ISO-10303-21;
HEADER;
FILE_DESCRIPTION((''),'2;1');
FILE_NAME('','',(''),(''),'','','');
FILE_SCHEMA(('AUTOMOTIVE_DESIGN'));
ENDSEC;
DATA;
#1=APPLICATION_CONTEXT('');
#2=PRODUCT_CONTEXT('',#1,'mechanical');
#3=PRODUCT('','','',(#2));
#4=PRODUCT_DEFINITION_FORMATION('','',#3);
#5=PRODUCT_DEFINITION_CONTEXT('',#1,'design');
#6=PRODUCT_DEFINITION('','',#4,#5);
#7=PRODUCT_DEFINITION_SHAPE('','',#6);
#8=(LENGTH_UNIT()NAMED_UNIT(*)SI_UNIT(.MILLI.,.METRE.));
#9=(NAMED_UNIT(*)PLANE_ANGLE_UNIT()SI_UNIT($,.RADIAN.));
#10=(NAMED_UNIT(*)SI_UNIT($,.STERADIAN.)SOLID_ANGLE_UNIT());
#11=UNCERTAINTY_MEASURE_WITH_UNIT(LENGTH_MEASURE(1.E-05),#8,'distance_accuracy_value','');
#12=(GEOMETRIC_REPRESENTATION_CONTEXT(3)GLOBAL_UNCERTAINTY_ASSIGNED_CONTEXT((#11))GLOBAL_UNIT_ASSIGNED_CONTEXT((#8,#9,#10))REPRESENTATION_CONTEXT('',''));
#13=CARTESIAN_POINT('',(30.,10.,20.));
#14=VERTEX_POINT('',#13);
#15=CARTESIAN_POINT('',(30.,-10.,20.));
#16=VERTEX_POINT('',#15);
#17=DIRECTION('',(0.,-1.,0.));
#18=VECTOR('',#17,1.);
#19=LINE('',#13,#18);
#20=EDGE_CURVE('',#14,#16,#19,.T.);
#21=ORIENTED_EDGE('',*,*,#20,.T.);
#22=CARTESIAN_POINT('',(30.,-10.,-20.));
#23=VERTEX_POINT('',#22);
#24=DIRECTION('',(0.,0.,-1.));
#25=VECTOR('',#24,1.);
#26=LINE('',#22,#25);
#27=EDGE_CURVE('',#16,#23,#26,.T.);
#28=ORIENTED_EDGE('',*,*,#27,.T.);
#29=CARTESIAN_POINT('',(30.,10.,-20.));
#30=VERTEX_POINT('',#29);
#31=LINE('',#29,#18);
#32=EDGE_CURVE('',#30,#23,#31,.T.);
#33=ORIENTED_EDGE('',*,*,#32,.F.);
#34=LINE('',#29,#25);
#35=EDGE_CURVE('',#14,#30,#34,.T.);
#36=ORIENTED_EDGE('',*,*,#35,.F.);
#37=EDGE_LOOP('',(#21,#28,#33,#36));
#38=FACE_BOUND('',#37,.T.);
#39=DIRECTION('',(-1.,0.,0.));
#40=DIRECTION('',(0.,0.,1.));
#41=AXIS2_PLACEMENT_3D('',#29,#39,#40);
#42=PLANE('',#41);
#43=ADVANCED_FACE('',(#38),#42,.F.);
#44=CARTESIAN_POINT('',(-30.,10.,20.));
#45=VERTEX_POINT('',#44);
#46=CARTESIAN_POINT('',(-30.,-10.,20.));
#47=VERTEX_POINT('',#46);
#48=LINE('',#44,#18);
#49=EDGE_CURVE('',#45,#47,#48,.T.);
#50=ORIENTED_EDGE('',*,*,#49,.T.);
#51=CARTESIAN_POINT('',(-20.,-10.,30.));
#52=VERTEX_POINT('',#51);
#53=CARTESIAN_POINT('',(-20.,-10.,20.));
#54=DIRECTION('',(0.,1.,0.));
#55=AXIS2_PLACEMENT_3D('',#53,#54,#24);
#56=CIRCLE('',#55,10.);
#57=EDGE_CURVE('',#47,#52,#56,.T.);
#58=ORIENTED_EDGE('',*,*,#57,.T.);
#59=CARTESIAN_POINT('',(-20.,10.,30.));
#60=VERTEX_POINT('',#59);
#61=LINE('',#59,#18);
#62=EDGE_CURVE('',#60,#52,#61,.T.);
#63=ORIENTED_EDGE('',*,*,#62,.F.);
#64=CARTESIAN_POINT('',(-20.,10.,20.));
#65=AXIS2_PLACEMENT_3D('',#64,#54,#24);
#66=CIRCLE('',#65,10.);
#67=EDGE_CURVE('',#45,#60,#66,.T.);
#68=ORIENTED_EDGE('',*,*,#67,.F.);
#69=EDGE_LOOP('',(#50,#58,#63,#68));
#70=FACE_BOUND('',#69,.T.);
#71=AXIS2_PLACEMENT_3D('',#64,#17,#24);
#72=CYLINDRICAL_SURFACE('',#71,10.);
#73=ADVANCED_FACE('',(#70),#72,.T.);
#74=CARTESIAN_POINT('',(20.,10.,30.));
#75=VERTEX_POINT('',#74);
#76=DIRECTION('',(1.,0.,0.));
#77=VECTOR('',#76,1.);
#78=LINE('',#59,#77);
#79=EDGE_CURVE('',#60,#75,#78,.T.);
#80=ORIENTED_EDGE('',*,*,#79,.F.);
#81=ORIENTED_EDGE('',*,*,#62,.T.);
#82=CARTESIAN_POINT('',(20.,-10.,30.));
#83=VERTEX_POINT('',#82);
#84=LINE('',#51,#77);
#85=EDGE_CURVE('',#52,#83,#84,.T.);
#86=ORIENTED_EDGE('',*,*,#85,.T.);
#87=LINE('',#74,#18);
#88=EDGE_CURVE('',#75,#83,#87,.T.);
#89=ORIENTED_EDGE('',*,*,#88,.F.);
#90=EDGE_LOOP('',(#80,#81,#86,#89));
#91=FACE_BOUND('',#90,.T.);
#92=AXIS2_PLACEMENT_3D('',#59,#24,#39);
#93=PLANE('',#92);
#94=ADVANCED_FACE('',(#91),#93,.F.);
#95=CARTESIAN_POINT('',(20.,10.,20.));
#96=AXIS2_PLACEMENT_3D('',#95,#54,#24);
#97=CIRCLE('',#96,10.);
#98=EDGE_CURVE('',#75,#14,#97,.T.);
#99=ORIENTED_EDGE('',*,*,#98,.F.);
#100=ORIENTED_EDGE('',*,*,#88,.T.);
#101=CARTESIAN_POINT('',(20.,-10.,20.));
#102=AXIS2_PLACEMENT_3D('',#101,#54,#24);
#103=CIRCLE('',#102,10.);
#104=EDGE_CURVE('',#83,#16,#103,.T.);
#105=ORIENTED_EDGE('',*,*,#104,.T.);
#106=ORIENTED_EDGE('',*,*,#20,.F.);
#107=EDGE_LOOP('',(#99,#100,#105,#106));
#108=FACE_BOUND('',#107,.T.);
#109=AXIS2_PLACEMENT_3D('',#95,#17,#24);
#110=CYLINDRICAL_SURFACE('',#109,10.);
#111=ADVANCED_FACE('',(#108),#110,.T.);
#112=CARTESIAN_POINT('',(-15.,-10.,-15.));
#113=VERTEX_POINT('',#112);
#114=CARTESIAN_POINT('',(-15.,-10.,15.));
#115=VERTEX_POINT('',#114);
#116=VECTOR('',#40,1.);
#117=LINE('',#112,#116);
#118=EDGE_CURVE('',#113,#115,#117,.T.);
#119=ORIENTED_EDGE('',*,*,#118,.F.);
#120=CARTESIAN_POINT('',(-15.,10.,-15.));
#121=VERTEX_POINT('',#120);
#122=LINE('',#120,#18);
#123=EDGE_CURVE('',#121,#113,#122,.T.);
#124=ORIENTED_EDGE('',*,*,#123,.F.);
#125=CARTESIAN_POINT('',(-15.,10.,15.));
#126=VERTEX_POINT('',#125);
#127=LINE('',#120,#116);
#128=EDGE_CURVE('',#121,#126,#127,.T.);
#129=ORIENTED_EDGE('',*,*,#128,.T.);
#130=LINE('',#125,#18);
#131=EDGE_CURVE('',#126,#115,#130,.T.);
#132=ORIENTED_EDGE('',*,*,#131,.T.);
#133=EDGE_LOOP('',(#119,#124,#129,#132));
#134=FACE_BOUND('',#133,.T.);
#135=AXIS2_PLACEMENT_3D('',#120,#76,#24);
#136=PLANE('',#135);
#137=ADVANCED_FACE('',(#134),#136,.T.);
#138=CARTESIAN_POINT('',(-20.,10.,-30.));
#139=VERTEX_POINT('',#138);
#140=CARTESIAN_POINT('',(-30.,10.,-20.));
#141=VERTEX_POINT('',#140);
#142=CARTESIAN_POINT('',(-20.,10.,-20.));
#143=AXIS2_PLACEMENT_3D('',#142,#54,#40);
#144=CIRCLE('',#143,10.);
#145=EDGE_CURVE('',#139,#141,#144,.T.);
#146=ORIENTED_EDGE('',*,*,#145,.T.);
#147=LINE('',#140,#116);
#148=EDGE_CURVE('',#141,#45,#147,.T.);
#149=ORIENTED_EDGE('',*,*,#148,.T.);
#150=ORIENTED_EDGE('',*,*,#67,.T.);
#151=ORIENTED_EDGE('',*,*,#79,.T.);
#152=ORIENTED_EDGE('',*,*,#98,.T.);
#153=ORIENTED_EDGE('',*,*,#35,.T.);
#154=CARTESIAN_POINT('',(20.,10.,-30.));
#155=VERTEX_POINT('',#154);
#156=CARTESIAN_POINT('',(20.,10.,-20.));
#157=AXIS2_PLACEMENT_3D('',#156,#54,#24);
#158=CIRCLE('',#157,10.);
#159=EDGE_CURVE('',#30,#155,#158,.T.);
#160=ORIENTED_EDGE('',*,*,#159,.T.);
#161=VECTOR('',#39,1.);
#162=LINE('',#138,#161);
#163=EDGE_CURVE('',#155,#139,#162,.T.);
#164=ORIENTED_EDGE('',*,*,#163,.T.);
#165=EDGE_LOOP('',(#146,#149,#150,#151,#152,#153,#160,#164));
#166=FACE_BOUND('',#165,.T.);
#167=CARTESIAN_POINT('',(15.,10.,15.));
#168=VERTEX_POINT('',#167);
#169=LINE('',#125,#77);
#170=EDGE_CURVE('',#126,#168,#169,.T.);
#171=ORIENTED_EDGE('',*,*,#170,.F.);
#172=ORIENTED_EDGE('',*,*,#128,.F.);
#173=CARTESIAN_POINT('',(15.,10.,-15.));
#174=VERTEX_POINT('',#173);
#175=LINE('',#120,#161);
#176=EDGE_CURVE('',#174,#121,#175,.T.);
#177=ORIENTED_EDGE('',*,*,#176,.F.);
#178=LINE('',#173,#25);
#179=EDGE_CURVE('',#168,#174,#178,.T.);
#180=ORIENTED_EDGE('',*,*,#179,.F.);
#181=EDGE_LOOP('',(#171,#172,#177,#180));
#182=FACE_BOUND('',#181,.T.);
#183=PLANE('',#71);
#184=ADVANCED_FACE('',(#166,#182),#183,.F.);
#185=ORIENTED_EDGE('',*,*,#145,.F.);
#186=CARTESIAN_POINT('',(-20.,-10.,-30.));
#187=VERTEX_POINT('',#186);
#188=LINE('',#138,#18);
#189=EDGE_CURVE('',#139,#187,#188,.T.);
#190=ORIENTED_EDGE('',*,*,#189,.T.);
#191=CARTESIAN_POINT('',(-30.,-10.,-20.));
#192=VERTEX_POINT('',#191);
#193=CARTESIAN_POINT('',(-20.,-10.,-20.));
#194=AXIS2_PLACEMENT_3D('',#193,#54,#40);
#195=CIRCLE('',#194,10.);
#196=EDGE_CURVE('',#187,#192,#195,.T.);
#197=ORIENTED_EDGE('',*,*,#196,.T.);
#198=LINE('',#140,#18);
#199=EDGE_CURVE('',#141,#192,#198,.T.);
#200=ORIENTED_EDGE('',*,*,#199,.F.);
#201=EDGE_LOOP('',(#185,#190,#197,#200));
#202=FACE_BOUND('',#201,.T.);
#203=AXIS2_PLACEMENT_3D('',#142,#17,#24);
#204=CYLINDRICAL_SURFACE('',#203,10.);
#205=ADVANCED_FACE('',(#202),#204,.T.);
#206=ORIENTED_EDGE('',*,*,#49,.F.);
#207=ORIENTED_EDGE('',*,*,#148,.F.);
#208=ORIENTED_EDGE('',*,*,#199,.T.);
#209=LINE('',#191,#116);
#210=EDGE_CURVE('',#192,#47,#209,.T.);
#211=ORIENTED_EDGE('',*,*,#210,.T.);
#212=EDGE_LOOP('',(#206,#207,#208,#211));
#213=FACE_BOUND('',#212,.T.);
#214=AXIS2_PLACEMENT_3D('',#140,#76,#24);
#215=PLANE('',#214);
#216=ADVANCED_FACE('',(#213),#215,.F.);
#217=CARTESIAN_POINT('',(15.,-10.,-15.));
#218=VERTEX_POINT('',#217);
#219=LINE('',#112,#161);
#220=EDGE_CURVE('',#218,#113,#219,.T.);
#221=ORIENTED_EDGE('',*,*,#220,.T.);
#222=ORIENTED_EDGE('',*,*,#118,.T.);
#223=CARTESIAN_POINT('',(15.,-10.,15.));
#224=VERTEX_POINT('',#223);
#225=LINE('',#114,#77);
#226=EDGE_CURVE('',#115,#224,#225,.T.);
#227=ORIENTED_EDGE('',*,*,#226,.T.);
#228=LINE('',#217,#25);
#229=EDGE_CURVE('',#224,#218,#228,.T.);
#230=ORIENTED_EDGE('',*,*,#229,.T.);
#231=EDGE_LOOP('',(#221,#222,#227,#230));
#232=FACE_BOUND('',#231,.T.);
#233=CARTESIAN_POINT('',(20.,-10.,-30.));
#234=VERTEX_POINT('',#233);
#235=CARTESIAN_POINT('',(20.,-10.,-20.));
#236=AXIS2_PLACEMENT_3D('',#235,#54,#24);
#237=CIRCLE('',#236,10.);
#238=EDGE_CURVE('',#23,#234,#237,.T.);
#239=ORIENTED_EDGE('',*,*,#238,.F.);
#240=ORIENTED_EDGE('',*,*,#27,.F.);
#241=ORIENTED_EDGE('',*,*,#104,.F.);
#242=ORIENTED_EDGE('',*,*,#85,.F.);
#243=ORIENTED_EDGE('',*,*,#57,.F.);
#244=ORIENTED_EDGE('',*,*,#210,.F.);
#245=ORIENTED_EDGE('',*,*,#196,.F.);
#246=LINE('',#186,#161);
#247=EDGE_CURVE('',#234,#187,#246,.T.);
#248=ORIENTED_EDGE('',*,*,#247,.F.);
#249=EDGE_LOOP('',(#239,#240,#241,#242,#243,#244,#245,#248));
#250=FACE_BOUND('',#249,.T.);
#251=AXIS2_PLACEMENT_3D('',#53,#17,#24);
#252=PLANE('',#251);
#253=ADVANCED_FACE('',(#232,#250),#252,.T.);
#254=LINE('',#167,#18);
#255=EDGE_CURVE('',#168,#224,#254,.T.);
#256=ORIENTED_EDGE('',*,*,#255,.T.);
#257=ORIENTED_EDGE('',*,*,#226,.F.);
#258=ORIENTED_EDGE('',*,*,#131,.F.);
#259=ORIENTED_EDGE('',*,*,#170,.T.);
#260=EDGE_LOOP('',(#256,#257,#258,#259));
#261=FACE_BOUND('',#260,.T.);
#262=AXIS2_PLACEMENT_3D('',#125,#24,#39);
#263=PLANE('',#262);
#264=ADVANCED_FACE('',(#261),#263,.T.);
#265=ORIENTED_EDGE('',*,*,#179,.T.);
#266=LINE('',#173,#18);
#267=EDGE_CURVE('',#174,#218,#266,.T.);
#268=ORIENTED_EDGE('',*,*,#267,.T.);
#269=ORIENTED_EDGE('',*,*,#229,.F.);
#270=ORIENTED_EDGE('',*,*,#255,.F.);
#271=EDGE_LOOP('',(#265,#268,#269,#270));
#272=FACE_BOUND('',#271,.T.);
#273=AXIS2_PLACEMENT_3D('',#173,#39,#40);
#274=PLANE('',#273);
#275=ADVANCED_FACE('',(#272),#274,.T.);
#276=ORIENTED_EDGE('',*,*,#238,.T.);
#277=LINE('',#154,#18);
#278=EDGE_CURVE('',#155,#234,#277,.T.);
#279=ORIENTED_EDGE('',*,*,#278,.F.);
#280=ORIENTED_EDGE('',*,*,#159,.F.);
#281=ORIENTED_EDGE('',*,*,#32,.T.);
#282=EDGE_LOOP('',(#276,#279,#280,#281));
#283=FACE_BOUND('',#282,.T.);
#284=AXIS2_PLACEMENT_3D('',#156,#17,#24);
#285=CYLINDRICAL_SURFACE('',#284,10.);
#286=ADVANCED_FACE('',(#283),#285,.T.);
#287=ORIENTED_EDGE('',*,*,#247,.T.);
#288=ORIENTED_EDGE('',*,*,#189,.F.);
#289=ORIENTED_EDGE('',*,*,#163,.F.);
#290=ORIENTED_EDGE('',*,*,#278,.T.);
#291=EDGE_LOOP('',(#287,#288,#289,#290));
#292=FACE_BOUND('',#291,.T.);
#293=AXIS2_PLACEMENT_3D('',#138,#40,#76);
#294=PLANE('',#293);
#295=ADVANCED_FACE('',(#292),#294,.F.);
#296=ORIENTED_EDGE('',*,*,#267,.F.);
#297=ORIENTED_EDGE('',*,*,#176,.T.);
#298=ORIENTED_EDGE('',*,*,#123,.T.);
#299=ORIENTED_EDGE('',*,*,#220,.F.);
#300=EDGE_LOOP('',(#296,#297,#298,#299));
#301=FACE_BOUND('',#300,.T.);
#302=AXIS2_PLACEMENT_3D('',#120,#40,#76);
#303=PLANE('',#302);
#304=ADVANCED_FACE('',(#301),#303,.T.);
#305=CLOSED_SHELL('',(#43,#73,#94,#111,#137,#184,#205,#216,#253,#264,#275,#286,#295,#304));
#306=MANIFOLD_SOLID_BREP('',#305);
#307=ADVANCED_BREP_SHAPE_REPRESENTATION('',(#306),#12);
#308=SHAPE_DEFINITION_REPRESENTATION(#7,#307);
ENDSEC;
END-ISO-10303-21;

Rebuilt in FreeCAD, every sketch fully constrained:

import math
import FreeCAD as App
import Part
import Sketcher
from FreeCAD import Vector
Q = App.Units.Quantity


def add_polygon(sketch, points):
    """Adds a closed chain of lines whose ends are joined by coincident constraints."""
    first, n = sketch.GeometryCount, len(points)
    for a, b in zip(points, points[1:] + points[:1]):
        sketch.addGeometry(Part.LineSegment(App.Vector(*a, 0), App.Vector(*b, 0)), False)
    for i in range(n):
        sketch.addConstraint(Sketcher.Constraint("Coincident", first + i, 2, first + (i + 1) % n, 1))

doc = App.newDocument("Part")
body = doc.addObject("PartDesign::Body", "Body")

sketch1 = body.newObject("Sketcher::SketchObject", "Sketch")
sketch1.AttachmentSupport = (doc.getObject("XZ_Plane"), [""])
sketch1.MapMode = "FlatFace"
sketch1.addGeometry(Part.LineSegment(Vector(20, -30, 0), Vector(-20, -30, 0)), False)
sketch1.addGeometry(Part.ArcOfCircle(Part.Circle(Vector(-20, -20, 0), Vector(0, 0, 1), 10), math.radians(180), math.radians(270)), False)
sketch1.addGeometry(Part.LineSegment(Vector(-30, -20, 0), Vector(-30, 20, 0)), False)
sketch1.addGeometry(Part.ArcOfCircle(Part.Circle(Vector(-20, 20, 0), Vector(0, 0, 1), 10), math.radians(90), math.radians(180)), False)
sketch1.addGeometry(Part.LineSegment(Vector(-20, 30, 0), Vector(20, 30, 0)), False)
sketch1.addGeometry(Part.ArcOfCircle(Part.Circle(Vector(20, 20, 0), Vector(0, 0, 1), 10), math.radians(0), math.radians(90)), False)
sketch1.addGeometry(Part.LineSegment(Vector(30, 20, 0), Vector(30, -20, 0)), False)
sketch1.addGeometry(Part.ArcOfCircle(Part.Circle(Vector(20, -20, 0), Vector(0, 0, 1), 10), math.radians(-90), math.radians(0)), False)
add_polygon(sketch1, [(-15, 15), (-15, -15), (15, -15), (15, 15)])
sketch1.addConstraint(Sketcher.Constraint("Tangent", 0, 2, 1, 2))
sketch1.addConstraint(Sketcher.Constraint("Tangent", 1, 1, 2, 1))
sketch1.addConstraint(Sketcher.Constraint("Tangent", 2, 2, 3, 2))
sketch1.addConstraint(Sketcher.Constraint("Tangent", 3, 1, 4, 1))
sketch1.addConstraint(Sketcher.Constraint("Tangent", 4, 2, 5, 2))
sketch1.addConstraint(Sketcher.Constraint("Tangent", 5, 1, 6, 1))
sketch1.addConstraint(Sketcher.Constraint("Tangent", 6, 2, 7, 2))
sketch1.addConstraint(Sketcher.Constraint("Tangent", 7, 1, 0, 1))
sketch1.addConstraint(Sketcher.Constraint("Horizontal", 0))
sketch1.addConstraint(Sketcher.Constraint("Vertical", 2))
sketch1.addConstraint(Sketcher.Constraint("Horizontal", 4))
sketch1.addConstraint(Sketcher.Constraint("Vertical", 6))
sketch1.addConstraint(Sketcher.Constraint("Vertical", 8))
sketch1.addConstraint(Sketcher.Constraint("Horizontal", 9))
sketch1.addConstraint(Sketcher.Constraint("Vertical", 10))
sketch1.addConstraint(Sketcher.Constraint("Horizontal", 11))
sketch1.addConstraint(Sketcher.Constraint("Equal", 1, 3))
sketch1.addConstraint(Sketcher.Constraint("Equal", 3, 5))
sketch1.addConstraint(Sketcher.Constraint("Equal", 5, 7))
sketch1.addConstraint(Sketcher.Constraint("Symmetric", 1, 3, 5, 3, -1, 1))
sketch1.addConstraint(Sketcher.Constraint("Symmetric", 8, 2, 10, 2, -1, 1))
sketch1.addConstraint(Sketcher.Constraint("Equal", 4, 2))
sketch1.addConstraint(Sketcher.Constraint("Equal", 11, 8))
sketch1.addConstraint(Sketcher.Constraint("Radius", 1, Q("10 mm")))
sketch1.addConstraint(Sketcher.Constraint("DistanceX", 0, 2, 0, 1, Q("40 mm")))
sketch1.addConstraint(Sketcher.Constraint("DistanceX", 9, 1, 9, 2, Q("30 mm")))
pad1 = body.newObject("PartDesign::Pad", "Pad")
pad1.Profile = sketch1
pad1.Length = 20
pad1.Midplane = True

doc.recompute()
